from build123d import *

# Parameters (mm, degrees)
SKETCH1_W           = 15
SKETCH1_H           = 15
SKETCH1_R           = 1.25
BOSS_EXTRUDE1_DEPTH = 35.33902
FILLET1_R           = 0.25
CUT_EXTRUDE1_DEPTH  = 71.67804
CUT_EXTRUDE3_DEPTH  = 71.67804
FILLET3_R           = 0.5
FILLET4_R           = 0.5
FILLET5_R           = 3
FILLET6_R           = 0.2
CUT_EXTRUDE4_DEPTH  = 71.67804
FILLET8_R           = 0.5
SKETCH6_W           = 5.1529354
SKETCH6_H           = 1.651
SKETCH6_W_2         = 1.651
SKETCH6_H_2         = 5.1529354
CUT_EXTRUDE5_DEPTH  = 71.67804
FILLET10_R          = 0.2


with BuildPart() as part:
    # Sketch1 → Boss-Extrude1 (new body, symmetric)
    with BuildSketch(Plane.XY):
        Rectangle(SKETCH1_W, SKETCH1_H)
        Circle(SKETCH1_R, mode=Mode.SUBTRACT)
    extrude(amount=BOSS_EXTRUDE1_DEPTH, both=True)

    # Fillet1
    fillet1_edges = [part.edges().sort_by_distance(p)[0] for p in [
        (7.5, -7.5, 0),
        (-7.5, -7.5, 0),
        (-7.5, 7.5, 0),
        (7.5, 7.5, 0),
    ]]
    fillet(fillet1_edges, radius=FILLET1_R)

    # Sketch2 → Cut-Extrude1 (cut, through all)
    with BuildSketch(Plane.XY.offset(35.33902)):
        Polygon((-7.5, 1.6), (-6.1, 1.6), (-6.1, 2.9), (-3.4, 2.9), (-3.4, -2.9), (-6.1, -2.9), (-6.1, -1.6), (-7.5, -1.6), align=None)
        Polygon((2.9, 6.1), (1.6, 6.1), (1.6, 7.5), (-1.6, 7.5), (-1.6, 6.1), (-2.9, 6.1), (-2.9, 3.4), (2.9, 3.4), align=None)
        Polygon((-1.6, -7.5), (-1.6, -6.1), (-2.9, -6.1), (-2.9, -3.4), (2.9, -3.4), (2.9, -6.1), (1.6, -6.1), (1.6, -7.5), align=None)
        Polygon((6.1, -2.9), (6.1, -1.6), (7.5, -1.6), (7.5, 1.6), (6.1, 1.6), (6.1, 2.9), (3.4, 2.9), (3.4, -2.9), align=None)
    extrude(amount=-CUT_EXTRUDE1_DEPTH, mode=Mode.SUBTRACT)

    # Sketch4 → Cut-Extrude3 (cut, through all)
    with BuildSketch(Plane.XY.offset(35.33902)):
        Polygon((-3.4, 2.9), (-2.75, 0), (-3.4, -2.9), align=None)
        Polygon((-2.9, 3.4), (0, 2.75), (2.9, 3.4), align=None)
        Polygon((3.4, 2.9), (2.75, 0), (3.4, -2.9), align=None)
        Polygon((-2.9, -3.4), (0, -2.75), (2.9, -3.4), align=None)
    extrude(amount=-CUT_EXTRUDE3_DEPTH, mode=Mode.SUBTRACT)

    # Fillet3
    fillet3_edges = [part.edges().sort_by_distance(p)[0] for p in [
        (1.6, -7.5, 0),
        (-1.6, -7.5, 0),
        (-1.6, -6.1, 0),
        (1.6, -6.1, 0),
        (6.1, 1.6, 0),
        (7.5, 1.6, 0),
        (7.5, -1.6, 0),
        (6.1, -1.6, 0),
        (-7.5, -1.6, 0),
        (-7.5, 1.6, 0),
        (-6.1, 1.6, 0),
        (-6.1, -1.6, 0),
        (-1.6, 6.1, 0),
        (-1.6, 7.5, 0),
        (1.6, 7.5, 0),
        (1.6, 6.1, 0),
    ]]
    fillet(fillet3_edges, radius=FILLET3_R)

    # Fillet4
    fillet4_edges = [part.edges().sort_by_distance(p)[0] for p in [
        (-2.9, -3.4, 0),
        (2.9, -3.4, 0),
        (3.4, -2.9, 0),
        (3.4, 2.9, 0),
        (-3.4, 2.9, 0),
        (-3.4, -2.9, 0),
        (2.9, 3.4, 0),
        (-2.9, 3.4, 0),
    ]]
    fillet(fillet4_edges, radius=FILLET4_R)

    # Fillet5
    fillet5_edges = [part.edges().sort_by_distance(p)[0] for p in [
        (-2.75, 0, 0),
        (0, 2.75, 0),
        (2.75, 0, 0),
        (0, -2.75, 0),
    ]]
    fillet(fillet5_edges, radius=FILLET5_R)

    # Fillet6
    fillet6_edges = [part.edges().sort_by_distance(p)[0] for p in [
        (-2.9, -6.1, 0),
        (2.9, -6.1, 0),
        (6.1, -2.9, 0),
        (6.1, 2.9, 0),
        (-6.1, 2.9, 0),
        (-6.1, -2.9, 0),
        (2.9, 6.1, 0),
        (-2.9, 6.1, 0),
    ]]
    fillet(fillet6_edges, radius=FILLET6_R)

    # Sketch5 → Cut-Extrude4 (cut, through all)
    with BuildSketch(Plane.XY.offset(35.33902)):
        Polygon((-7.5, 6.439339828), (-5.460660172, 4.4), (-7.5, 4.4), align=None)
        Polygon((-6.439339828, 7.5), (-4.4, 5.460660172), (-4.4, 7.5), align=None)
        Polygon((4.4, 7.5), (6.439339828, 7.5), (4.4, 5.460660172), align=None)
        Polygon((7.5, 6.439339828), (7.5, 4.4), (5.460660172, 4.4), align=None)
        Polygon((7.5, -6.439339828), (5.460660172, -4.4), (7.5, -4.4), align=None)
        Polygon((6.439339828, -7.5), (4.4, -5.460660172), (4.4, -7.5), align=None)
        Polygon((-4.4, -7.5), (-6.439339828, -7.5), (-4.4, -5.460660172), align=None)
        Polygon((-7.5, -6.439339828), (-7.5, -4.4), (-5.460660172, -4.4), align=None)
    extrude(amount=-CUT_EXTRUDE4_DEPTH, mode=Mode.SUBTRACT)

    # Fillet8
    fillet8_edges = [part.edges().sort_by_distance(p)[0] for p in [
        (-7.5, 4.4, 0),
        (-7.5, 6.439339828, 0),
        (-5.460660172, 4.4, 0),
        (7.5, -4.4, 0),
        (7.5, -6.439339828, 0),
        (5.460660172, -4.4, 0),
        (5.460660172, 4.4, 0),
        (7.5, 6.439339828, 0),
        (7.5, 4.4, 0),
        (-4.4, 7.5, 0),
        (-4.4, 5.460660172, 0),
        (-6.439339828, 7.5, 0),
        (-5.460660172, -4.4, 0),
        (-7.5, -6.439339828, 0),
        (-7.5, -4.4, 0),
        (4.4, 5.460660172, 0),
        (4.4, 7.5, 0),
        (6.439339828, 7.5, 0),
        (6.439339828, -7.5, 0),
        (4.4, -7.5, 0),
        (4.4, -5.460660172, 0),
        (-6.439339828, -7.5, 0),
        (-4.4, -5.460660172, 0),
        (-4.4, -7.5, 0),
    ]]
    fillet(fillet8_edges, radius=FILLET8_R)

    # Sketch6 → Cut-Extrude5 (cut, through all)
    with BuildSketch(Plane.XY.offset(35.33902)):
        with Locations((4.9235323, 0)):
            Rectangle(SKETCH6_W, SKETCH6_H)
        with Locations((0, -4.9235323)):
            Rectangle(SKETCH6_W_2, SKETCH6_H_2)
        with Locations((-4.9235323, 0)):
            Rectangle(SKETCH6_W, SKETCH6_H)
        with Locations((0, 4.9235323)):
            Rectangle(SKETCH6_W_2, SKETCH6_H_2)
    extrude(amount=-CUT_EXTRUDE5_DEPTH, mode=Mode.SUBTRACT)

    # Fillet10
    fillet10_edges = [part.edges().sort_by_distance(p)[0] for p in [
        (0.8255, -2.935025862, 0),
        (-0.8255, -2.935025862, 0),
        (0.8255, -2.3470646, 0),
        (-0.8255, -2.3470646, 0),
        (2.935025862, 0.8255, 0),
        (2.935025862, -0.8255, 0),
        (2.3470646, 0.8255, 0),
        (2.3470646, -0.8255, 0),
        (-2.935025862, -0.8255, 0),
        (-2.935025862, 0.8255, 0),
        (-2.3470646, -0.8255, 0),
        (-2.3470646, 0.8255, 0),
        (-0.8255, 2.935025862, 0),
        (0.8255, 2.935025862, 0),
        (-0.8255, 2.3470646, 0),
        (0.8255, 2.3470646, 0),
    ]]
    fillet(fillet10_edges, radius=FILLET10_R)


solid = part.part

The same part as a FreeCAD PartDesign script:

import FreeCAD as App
import Part
import Sketcher
from FreeCAD import Vector


def edges_at(feature, points):
    """Names of the edges that pass closest to the given points."""
    edges = feature.Shape.Edges
    near = lambda p: min(range(len(edges)), key=lambda i: edges[i].distToShape(Part.Vertex(*p))[0])
    return sorted({f"Edge{near(p) + 1}" for p in points})


def add_polygon(sketch, points):
    """Adds a closed chain of lines whose ends are joined by coincident constraints."""
    first, n = sketch.GeometryCount, len(points)
    for a, b in zip(points, points[1:] + points[:1]):
        sketch.addGeometry(Part.LineSegment(App.Vector(*a, 0), App.Vector(*b, 0)), False)
    for i in range(n):
        sketch.addConstraint(Sketcher.Constraint("Coincident", first + i, 2, first + (i + 1) % n, 1))

doc = App.newDocument("Part")
body = doc.addObject("PartDesign::Body", "Body")

sketch1 = body.newObject("Sketcher::SketchObject", "Sketch")
sketch1.AttachmentSupport = (doc.getObject("XY_Plane"), [""])
sketch1.MapMode = "FlatFace"
add_polygon(sketch1, [(-7.5, 7.5), (-7.5, -7.5), (7.5, -7.5), (7.5, 7.5)])
sketch1.addGeometry(Part.Circle(Vector(0, 0, 0), Vector(0, 0, 1), 1.25), False)
sketch1.addConstraint([
    Sketcher.Constraint("Vertical", 0),
    Sketcher.Constraint("Horizontal", 1),
    Sketcher.Constraint("Vertical", 2),
    Sketcher.Constraint("Horizontal", 3),
    Sketcher.Constraint("Coincident", 4, 3, -1, 1),
    Sketcher.Constraint("Symmetric", 0, 2, 2, 2, -1, 1),
    Sketcher.Constraint("Equal", 3, 0),
    Sketcher.Constraint("Diameter", 4, 2.5),
    Sketcher.Constraint("DistanceX", 1, 1, 1, 2, 15.0),
])
pad1 = body.newObject("PartDesign::Pad", "Pad")
pad1.Profile = sketch1
pad1.Length = 70.67804
pad1.Midplane = True
doc.recompute()

fillet = body.newObject("PartDesign::Fillet", "Fillet")
fillet.Base = (pad1, edges_at(pad1, [
    (7.5, -7.5, 0),
    (-7.5, -7.5, 0),
    (-7.5, 7.5, 0),
    (7.5, 7.5, 0),
]))
fillet.Radius = 0.25

sketch2 = body.newObject("Sketcher::SketchObject", "Sketch001")
sketch2.AttachmentSupport = (doc.getObject("XY_Plane"), [""])
sketch2.MapMode = "FlatFace"
sketch2.AttachmentOffset = App.Placement(Vector(0, 0, 35.33902), App.Rotation())
add_polygon(sketch2, [(-6.1, 1.6), (-7.5, 1.6), (-7.5, -1.6), (-6.1, -1.6), (-6.1, -2.9), (-3.4, -2.9), (-3.4, 2.9), (-6.1, 2.9)])
add_polygon(sketch2, [(2.9, 6.1), (1.6, 6.1), (1.6, 7.5), (-1.6, 7.5), (-1.6, 6.1), (-2.9, 6.1), (-2.9, 3.4), (2.9, 3.4)])
add_polygon(sketch2, [(-1.6, -6.1), (-1.6, -7.5), (1.6, -7.5), (1.6, -6.1), (2.9, -6.1), (2.9, -3.4), (-2.9, -3.4), (-2.9, -6.1)])
add_polygon(sketch2, [(6.1, -2.9), (6.1, -1.6), (7.5, -1.6), (7.5, 1.6), (6.1, 1.6), (6.1, 2.9), (3.4, 2.9), (3.4, -2.9)])
sketch2.addConstraint([
    Sketcher.Constraint("Horizontal", 0),
    Sketcher.Constraint("Vertical", 1),
    Sketcher.Constraint("Horizontal", 2),
    Sketcher.Constraint("Vertical", 3),
    Sketcher.Constraint("Horizontal", 4),
    Sketcher.Constraint("Vertical", 5),
    Sketcher.Constraint("Horizontal", 6),
    Sketcher.Constraint("Vertical", 7),
    Sketcher.Constraint("Horizontal", 8),
    Sketcher.Constraint("Vertical", 9),
    Sketcher.Constraint("Horizontal", 10),
    Sketcher.Constraint("Vertical", 11),
    Sketcher.Constraint("Horizontal", 12),
    Sketcher.Constraint("Vertical", 13),
    Sketcher.Constraint("Horizontal", 14),
    Sketcher.Constraint("Vertical", 15),
    Sketcher.Constraint("Vertical", 16),
    Sketcher.Constraint("Horizontal", 17),
    Sketcher.Constraint("Vertical", 18),
    Sketcher.Constraint("Horizontal", 19),
    Sketcher.Constraint("Vertical", 20),
    Sketcher.Constraint("Horizontal", 21),
    Sketcher.Constraint("Vertical", 22),
    Sketcher.Constraint("Horizontal", 23),
    Sketcher.Constraint("Vertical", 24),
    Sketcher.Constraint("Horizontal", 25),
    Sketcher.Constraint("Vertical", 26),
    Sketcher.Constraint("Horizontal", 27),
    Sketcher.Constraint("Vertical", 28),
    Sketcher.Constraint("Horizontal", 29),
    Sketcher.Constraint("Vertical", 30),
    Sketcher.Constraint("Horizontal", 31),
    Sketcher.Constraint("Symmetric", 9, 2, 16, 2, -1, 1),
    Sketcher.Constraint("Symmetric", 11, 2, 18, 2, -1, 1),
    Sketcher.Constraint("Symmetric", 13, 2, 20, 2, -1, 1),
    Sketcher.Constraint("Symmetric", 15, 2, 22, 2, -1, 1),
    Sketcher.Constraint("Symmetric", 7, 2, 24, 2, -1, 1),
    Sketcher.Constraint("Symmetric", 1, 2, 26, 2, -1, 1),
    Sketcher.Constraint("Symmetric", 3, 2, 28, 2, -1, 1),
    Sketcher.Constraint("Symmetric", 5, 2, 30, 2, -1, 1),
    Sketcher.Constraint("Symmetric", 8, 2, 11, 2, -2),
    Sketcher.Constraint("Symmetric", 2, 2, 24, 2, -2),
    Sketcher.Constraint("Horizontal", 6, 2, 28, 2),
    Sketcher.Constraint("Vertical", 15, 2, 19, 2),
    Sketcher.Constraint("Equal", 17, 1),
    Sketcher.Constraint("Equal", 23, 3),
    Sketcher.Constraint("Equal", 27, 9),
    Sketcher.Constraint("Equal", 31, 13),
    Sketcher.Constraint("DistanceX", 0, 2, 0, 1, 1.4),
    Sketcher.Constraint("DistanceX", 4, 1, 4, 2, 2.7),
    Sketcher.Constraint("DistanceX", 8, 2, 8, 1, 1.3),
    Sketcher.Constraint("DistanceX", 10, 2, 10, 1, 3.2),
    Sketcher.Constraint("DistanceX", 5, 2, 8, 2, 5.0),
    Sketcher.Constraint("DistanceY", 4, 2, 8, 2, 9.0),
])
pocket1 = body.newObject("PartDesign::Pocket", "Pocket")
pocket1.Profile = sketch2
pocket1.Type = "ThroughAll"

sketch3 = body.newObject("Sketcher::SketchObject", "Sketch002")
sketch3.AttachmentSupport = (doc.getObject("XY_Plane"), [""])
sketch3.MapMode = "FlatFace"
sketch3.AttachmentOffset = App.Placement(Vector(0, 0, 35.33902), App.Rotation())
add_polygon(sketch3, [(-2.75, 0), (-3.4, 2.9), (-3.4, -2.9)])
add_polygon(sketch3, [(-2.9, 3.4), (0, 2.75), (2.9, 3.4)])
add_polygon(sketch3, [(3.4, 2.9), (2.75, 0), (3.4, -2.9)])
add_polygon(sketch3, [(0, -2.75), (-2.9, -3.4), (2.9, -3.4)])
sketch3.addConstraint([
    Sketcher.Constraint("Vertical", 1),
    Sketcher.Constraint("Horizontal", 5),
    Sketcher.Constraint("Vertical", 8),
    Sketcher.Constraint("Horizontal", 10),
    Sketcher.Constraint("Symmetric", 2, 2, 6, 2, -1, 1),
    Sketcher.Constraint("Symmetric", 0, 2, 7, 2, -1, 1),
    Sketcher.Constraint("Symmetric", 4, 2, 9, 2, -1, 1),
    Sketcher.Constraint("Symmetric", 3, 2, 11, 2, -1, 1),
    Sketcher.Constraint("PointOnObject", 2, 2, -1),
    Sketcher.Constraint("PointOnObject", 3, 2, -2),
    Sketcher.Constraint("Perpendicular", 2, 3),
    Sketcher.Constraint("Perpendicular", 0, 4),
    Sketcher.Constraint("Perpendicular", 3, 6),
    Sketcher.Constraint("Perpendicular", 6, 11),
    Sketcher.Constraint("Horizontal", 1, 2, 7, 2),
    Sketcher.Constraint("Equal", 10, 1),
    Sketcher.Constraint("DistanceX", 5, 2, 5, 1, 5.8),
    Sketcher.Constraint("DistanceX", 0, 2, -1, 1, 3.4),
    Sketcher.Constraint("DistanceY", -1, 1, 4, 2, 3.4),
    Sketcher.Constraint("DistanceX", 2, 2, 6, 2, 5.5),
])
pocket2 = body.newObject("PartDesign::Pocket", "Pocket001")
pocket2.Profile = sketch3
pocket2.Type = "ThroughAll"
doc.recompute()

fillet2 = body.newObject("PartDesign::Fillet", "Fillet001")
fillet2.Base = (pocket2, edges_at(pocket2, [
    (1.6, -7.5, 0),
    (-1.6, -7.5, 0),
    (-1.6, -6.1, 0),
    (1.6, -6.1, 0),
    (6.1, 1.6, 0),
    (7.5, 1.6, 0),
    (7.5, -1.6, 0),
    (6.1, -1.6, 0),
    (-7.5, -1.6, 0),
    (-7.5, 1.6, 0),
    (-6.1, 1.6, 0),
    (-6.1, -1.6, 0),
    (-1.6, 6.1, 0),
    (-1.6, 7.5, 0),
    (1.6, 7.5, 0),
    (1.6, 6.1, 0),
]))
fillet2.Radius = 0.5
doc.recompute()

fillet3 = body.newObject("PartDesign::Fillet", "Fillet002")
fillet3.Base = (fillet2, edges_at(fillet2, [
    (-2.9, -3.4, 0),
    (2.9, -3.4, 0),
    (3.4, -2.9, 0),
    (3.4, 2.9, 0),
    (-3.4, 2.9, 0),
    (-3.4, -2.9, 0),
    (2.9, 3.4, 0),
    (-2.9, 3.4, 0),
]))
fillet3.Radius = 0.5
doc.recompute()

fillet4 = body.newObject("PartDesign::Fillet", "Fillet003")
fillet4.Base = (fillet3, edges_at(fillet3, [
    (-2.75, 0, 0),
    (0, 2.75, 0),
    (2.75, 0, 0),
    (0, -2.75, 0),
]))
fillet4.Radius = 3
doc.recompute()

fillet5 = body.newObject("PartDesign::Fillet", "Fillet004")
fillet5.Base = (fillet4, edges_at(fillet4, [
    (-2.9, -6.1, 0),
    (2.9, -6.1, 0),
    (6.1, -2.9, 0),
    (6.1, 2.9, 0),
    (-6.1, 2.9, 0),
    (-6.1, -2.9, 0),
    (2.9, 6.1, 0),
    (-2.9, 6.1, 0),
]))
fillet5.Radius = 0.2

sketch4 = body.newObject("Sketcher::SketchObject", "Sketch003")
sketch4.AttachmentSupport = (doc.getObject("XY_Plane"), [""])
sketch4.MapMode = "FlatFace"
sketch4.AttachmentOffset = App.Placement(Vector(0, 0, 35.33902), App.Rotation())
add_polygon(sketch4, [(-5.46066, 4.4), (-7.5, 6.43934), (-7.5, 4.4)])
add_polygon(sketch4, [(-6.43934, 7.5), (-4.4, 5.46066), (-4.4, 7.5)])
add_polygon(sketch4, [(6.43934, 7.5), (4.4, 7.5), (4.4, 5.46066)])
add_polygon(sketch4, [(7.5, 4.4), (7.5, 6.43934), (5.46066, 4.4)])
add_polygon(sketch4, [(5.46066, -4.4), (7.5, -6.43934), (7.5, -4.4)])
add_polygon(sketch4, [(6.43934, -7.5), (4.4, -5.46066), (4.4, -7.5)])
add_polygon(sketch4, [(-6.43934, -7.5), (-4.4, -7.5), (-4.4, -5.46066)])
add_polygon(sketch4, [(-7.5, -4.4), (-7.5, -6.43934), (-5.46066, -4.4)])
sketch4.addConstraint([
    Sketcher.Constraint("Vertical", 1),
    Sketcher.Constraint("Horizontal", 2),
    Sketcher.Constraint("Vertical", 4),
    Sketcher.Constraint("Horizontal", 5),
    Sketcher.Constraint("Horizontal", 6),
    Sketcher.Constraint("Vertical", 7),
    Sketcher.Constraint("Vertical", 9),
    Sketcher.Constraint("Horizontal", 11),
    Sketcher.Constraint("Vertical", 13),
    Sketcher.Constraint("Horizontal", 14),
    Sketcher.Constraint("Vertical", 16),
    Sketcher.Constraint("Horizontal", 17),
    Sketcher.Constraint("Horizontal", 18),
    Sketcher.Constraint("Vertical", 19),
    Sketcher.Constraint("Vertical", 21),
    Sketcher.Constraint("Horizontal", 23),
    Sketcher.Constraint("Symmetric", 0, 2, 12, 2, -1, 1),
    Sketcher.Constraint("Symmetric", 2, 2, 14, 2, -1, 1),
    Sketcher.Constraint("Symmetric", 3, 2, 15, 2, -1, 1),
    Sketcher.Constraint("Symmetric", 5, 2, 17, 2, -1, 1),
    Sketcher.Constraint("Symmetric", 6, 2, 18, 2, -1, 1),
    Sketcher.Constraint("Symmetric", 9, 2, 21, 2, -1, 1),
    Sketcher.Constraint("Symmetric", 10, 2, 22, 2, -1, 1),
    Sketcher.Constraint("Symmetric", 4, 2, 6, 2, -2),
    Sketcher.Constraint("Symmetric", 0, 2, 9, 2, -2),
    Sketcher.Constraint("Symmetric", 2, 2, 10, 2, -2),
    Sketcher.Constraint("Parallel", 0, 3),
    Sketcher.Constraint("Perpendicular", 3, 8),
    Sketcher.Constraint("Parallel", 8, 10),
    Sketcher.Constraint("Perpendicular", 15, 20),
    Sketcher.Constraint("Horizontal", 3, 2, 7, 2),
    Sketcher.Constraint("Horizontal", 15, 2, 19, 2),
    Sketcher.Constraint("Equal", 2, 5),
    Sketcher.Constraint("DistanceX", 0, 2, -1, 1, 7.5),
    Sketcher.Constraint("DistanceY", -1, 1, 1, 2, 4.4),
    Sketcher.Constraint("DistanceX", 3, 2, -1, 1, 4.4),
    Sketcher.Constraint("DistanceY", -1, 1, 4, 2, 7.5),
    Sketcher.Constraint("DistanceX", 2, 1, 2, 2, 2.03934),
])
pocket3 = body.newObject("PartDesign::Pocket", "Pocket002")
pocket3.Profile = sketch4
pocket3.Type = "ThroughAll"
doc.recompute()

fillet6 = body.newObject("PartDesign::Fillet", "Fillet005")
fillet6.Base = (pocket3, edges_at(pocket3, [
    (-7.5, 4.4, 0),
    (-7.5, 6.439, 0),
    (-5.461, 4.4, 0),
    (7.5, -4.4, 0),
    (7.5, -6.439, 0),
    (5.461, -4.4, 0),
    (5.461, 4.4, 0),
    (7.5, 6.439, 0),
    (7.5, 4.4, 0),
    (-4.4, 7.5, 0),
    (-4.4, 5.461, 0),
    (-6.439, 7.5, 0),
    (-5.461, -4.4, 0),
    (-7.5, -6.439, 0),
    (-7.5, -4.4, 0),
    (4.4, 5.461, 0),
    (4.4, 7.5, 0),
    (6.439, 7.5, 0),
    (6.439, -7.5, 0),
    (4.4, -7.5, 0),
    (4.4, -5.461, 0),
    (-6.439, -7.5, 0),
    (-4.4, -5.461, 0),
    (-4.4, -7.5, 0),
]))
fillet6.Radius = 0.5

sketch5 = body.newObject("Sketcher::SketchObject", "Sketch004")
sketch5.AttachmentSupport = (doc.getObject("XY_Plane"), [""])
sketch5.MapMode = "FlatFace"
sketch5.AttachmentOffset = App.Placement(Vector(0, 0, 35.33902), App.Rotation())
add_polygon(sketch5, [(2.347065, 0.8255), (2.347065, -0.8255), (7.5, -0.8255), (7.5, 0.8255)])
add_polygon(sketch5, [(-0.8255, -2.347065), (-0.8255, -7.5), (0.8255, -7.5), (0.8255, -2.347065)])
add_polygon(sketch5, [(-7.5, 0.8255), (-7.5, -0.8255), (-2.347065, -0.8255), (-2.347065, 0.8255)])
add_polygon(sketch5, [(-0.8255, 7.5), (-0.8255, 2.347065), (0.8255, 2.347065), (0.8255, 7.5)])
sketch5.addConstraint([
    Sketcher.Constraint("Vertical", 0),
    Sketcher.Constraint("Horizontal", 1),
    Sketcher.Constraint("Vertical", 2),
    Sketcher.Constraint("Horizontal", 3),
    Sketcher.Constraint("Vertical", 4),
    Sketcher.Constraint("Horizontal", 5),
    Sketcher.Constraint("Vertical", 6),
    Sketcher.Constraint("Horizontal", 7),
    Sketcher.Constraint("Vertical", 8),
    Sketcher.Constraint("Horizontal", 9),
    Sketcher.Constraint("Vertical", 10),
    Sketcher.Constraint("Horizontal", 11),
    Sketcher.Constraint("Vertical", 12),
    Sketcher.Constraint("Horizontal", 13),
    Sketcher.Constraint("Vertical", 14),
    Sketcher.Constraint("Horizontal", 15),
    Sketcher.Constraint("Symmetric", 2, 2, 8, 2, -1, 1),
    Sketcher.Constraint("Symmetric", 0, 2, 10, 2, -1, 1),
    Sketcher.Constraint("Symmetric", 6, 2, 12, 2, -1, 1),
    Sketcher.Constraint("Symmetric", 4, 2, 14, 2, -1, 1),
    Sketcher.Constraint("Horizontal", 1, 2, 8, 2),
    Sketcher.Constraint("Vertical", 7, 2, 12, 2),
    Sketcher.Constraint("Equal", 15, 0),
    Sketcher.Constraint("Equal", 11, 4),
    Sketcher.Constraint("DistanceX", -1, 1, 1, 2, 7.5),
    Sketcher.Constraint("DistanceY", 4, 2, -1, 1, 7.5),
    Sketcher.Constraint("DistanceX", 5, 1, 5, 2, 1.651),
    Sketcher.Constraint("DistanceX", 1, 1, 1, 2, 5.152935),
])
pocket4 = body.newObject("PartDesign::Pocket", "Pocket003")
pocket4.Profile = sketch5
pocket4.Type = "ThroughAll"
doc.recompute()

fillet7 = body.newObject("PartDesign::Fillet", "Fillet006")
fillet7.Base = (pocket4, edges_at(pocket4, [
    (0.826, -2.935, 0),
    (-0.826, -2.935, 0),
    (0.826, -2.347, 0),
    (-0.826, -2.347, 0),
    (2.935, 0.826, 0),
    (2.935, -0.826, 0),
    (2.347, 0.826, 0),
    (2.347, -0.826, 0),
    (-2.935, -0.826, 0),
    (-2.935, 0.826, 0),
    (-2.347, -0.826, 0),
    (-2.347, 0.826, 0),
    (-0.826, 2.935, 0),
    (0.826, 2.935, 0),
    (-0.826, 2.347, 0),
    (0.826, 2.347, 0),
]))
fillet7.Radius = 0.2

doc.recompute()
